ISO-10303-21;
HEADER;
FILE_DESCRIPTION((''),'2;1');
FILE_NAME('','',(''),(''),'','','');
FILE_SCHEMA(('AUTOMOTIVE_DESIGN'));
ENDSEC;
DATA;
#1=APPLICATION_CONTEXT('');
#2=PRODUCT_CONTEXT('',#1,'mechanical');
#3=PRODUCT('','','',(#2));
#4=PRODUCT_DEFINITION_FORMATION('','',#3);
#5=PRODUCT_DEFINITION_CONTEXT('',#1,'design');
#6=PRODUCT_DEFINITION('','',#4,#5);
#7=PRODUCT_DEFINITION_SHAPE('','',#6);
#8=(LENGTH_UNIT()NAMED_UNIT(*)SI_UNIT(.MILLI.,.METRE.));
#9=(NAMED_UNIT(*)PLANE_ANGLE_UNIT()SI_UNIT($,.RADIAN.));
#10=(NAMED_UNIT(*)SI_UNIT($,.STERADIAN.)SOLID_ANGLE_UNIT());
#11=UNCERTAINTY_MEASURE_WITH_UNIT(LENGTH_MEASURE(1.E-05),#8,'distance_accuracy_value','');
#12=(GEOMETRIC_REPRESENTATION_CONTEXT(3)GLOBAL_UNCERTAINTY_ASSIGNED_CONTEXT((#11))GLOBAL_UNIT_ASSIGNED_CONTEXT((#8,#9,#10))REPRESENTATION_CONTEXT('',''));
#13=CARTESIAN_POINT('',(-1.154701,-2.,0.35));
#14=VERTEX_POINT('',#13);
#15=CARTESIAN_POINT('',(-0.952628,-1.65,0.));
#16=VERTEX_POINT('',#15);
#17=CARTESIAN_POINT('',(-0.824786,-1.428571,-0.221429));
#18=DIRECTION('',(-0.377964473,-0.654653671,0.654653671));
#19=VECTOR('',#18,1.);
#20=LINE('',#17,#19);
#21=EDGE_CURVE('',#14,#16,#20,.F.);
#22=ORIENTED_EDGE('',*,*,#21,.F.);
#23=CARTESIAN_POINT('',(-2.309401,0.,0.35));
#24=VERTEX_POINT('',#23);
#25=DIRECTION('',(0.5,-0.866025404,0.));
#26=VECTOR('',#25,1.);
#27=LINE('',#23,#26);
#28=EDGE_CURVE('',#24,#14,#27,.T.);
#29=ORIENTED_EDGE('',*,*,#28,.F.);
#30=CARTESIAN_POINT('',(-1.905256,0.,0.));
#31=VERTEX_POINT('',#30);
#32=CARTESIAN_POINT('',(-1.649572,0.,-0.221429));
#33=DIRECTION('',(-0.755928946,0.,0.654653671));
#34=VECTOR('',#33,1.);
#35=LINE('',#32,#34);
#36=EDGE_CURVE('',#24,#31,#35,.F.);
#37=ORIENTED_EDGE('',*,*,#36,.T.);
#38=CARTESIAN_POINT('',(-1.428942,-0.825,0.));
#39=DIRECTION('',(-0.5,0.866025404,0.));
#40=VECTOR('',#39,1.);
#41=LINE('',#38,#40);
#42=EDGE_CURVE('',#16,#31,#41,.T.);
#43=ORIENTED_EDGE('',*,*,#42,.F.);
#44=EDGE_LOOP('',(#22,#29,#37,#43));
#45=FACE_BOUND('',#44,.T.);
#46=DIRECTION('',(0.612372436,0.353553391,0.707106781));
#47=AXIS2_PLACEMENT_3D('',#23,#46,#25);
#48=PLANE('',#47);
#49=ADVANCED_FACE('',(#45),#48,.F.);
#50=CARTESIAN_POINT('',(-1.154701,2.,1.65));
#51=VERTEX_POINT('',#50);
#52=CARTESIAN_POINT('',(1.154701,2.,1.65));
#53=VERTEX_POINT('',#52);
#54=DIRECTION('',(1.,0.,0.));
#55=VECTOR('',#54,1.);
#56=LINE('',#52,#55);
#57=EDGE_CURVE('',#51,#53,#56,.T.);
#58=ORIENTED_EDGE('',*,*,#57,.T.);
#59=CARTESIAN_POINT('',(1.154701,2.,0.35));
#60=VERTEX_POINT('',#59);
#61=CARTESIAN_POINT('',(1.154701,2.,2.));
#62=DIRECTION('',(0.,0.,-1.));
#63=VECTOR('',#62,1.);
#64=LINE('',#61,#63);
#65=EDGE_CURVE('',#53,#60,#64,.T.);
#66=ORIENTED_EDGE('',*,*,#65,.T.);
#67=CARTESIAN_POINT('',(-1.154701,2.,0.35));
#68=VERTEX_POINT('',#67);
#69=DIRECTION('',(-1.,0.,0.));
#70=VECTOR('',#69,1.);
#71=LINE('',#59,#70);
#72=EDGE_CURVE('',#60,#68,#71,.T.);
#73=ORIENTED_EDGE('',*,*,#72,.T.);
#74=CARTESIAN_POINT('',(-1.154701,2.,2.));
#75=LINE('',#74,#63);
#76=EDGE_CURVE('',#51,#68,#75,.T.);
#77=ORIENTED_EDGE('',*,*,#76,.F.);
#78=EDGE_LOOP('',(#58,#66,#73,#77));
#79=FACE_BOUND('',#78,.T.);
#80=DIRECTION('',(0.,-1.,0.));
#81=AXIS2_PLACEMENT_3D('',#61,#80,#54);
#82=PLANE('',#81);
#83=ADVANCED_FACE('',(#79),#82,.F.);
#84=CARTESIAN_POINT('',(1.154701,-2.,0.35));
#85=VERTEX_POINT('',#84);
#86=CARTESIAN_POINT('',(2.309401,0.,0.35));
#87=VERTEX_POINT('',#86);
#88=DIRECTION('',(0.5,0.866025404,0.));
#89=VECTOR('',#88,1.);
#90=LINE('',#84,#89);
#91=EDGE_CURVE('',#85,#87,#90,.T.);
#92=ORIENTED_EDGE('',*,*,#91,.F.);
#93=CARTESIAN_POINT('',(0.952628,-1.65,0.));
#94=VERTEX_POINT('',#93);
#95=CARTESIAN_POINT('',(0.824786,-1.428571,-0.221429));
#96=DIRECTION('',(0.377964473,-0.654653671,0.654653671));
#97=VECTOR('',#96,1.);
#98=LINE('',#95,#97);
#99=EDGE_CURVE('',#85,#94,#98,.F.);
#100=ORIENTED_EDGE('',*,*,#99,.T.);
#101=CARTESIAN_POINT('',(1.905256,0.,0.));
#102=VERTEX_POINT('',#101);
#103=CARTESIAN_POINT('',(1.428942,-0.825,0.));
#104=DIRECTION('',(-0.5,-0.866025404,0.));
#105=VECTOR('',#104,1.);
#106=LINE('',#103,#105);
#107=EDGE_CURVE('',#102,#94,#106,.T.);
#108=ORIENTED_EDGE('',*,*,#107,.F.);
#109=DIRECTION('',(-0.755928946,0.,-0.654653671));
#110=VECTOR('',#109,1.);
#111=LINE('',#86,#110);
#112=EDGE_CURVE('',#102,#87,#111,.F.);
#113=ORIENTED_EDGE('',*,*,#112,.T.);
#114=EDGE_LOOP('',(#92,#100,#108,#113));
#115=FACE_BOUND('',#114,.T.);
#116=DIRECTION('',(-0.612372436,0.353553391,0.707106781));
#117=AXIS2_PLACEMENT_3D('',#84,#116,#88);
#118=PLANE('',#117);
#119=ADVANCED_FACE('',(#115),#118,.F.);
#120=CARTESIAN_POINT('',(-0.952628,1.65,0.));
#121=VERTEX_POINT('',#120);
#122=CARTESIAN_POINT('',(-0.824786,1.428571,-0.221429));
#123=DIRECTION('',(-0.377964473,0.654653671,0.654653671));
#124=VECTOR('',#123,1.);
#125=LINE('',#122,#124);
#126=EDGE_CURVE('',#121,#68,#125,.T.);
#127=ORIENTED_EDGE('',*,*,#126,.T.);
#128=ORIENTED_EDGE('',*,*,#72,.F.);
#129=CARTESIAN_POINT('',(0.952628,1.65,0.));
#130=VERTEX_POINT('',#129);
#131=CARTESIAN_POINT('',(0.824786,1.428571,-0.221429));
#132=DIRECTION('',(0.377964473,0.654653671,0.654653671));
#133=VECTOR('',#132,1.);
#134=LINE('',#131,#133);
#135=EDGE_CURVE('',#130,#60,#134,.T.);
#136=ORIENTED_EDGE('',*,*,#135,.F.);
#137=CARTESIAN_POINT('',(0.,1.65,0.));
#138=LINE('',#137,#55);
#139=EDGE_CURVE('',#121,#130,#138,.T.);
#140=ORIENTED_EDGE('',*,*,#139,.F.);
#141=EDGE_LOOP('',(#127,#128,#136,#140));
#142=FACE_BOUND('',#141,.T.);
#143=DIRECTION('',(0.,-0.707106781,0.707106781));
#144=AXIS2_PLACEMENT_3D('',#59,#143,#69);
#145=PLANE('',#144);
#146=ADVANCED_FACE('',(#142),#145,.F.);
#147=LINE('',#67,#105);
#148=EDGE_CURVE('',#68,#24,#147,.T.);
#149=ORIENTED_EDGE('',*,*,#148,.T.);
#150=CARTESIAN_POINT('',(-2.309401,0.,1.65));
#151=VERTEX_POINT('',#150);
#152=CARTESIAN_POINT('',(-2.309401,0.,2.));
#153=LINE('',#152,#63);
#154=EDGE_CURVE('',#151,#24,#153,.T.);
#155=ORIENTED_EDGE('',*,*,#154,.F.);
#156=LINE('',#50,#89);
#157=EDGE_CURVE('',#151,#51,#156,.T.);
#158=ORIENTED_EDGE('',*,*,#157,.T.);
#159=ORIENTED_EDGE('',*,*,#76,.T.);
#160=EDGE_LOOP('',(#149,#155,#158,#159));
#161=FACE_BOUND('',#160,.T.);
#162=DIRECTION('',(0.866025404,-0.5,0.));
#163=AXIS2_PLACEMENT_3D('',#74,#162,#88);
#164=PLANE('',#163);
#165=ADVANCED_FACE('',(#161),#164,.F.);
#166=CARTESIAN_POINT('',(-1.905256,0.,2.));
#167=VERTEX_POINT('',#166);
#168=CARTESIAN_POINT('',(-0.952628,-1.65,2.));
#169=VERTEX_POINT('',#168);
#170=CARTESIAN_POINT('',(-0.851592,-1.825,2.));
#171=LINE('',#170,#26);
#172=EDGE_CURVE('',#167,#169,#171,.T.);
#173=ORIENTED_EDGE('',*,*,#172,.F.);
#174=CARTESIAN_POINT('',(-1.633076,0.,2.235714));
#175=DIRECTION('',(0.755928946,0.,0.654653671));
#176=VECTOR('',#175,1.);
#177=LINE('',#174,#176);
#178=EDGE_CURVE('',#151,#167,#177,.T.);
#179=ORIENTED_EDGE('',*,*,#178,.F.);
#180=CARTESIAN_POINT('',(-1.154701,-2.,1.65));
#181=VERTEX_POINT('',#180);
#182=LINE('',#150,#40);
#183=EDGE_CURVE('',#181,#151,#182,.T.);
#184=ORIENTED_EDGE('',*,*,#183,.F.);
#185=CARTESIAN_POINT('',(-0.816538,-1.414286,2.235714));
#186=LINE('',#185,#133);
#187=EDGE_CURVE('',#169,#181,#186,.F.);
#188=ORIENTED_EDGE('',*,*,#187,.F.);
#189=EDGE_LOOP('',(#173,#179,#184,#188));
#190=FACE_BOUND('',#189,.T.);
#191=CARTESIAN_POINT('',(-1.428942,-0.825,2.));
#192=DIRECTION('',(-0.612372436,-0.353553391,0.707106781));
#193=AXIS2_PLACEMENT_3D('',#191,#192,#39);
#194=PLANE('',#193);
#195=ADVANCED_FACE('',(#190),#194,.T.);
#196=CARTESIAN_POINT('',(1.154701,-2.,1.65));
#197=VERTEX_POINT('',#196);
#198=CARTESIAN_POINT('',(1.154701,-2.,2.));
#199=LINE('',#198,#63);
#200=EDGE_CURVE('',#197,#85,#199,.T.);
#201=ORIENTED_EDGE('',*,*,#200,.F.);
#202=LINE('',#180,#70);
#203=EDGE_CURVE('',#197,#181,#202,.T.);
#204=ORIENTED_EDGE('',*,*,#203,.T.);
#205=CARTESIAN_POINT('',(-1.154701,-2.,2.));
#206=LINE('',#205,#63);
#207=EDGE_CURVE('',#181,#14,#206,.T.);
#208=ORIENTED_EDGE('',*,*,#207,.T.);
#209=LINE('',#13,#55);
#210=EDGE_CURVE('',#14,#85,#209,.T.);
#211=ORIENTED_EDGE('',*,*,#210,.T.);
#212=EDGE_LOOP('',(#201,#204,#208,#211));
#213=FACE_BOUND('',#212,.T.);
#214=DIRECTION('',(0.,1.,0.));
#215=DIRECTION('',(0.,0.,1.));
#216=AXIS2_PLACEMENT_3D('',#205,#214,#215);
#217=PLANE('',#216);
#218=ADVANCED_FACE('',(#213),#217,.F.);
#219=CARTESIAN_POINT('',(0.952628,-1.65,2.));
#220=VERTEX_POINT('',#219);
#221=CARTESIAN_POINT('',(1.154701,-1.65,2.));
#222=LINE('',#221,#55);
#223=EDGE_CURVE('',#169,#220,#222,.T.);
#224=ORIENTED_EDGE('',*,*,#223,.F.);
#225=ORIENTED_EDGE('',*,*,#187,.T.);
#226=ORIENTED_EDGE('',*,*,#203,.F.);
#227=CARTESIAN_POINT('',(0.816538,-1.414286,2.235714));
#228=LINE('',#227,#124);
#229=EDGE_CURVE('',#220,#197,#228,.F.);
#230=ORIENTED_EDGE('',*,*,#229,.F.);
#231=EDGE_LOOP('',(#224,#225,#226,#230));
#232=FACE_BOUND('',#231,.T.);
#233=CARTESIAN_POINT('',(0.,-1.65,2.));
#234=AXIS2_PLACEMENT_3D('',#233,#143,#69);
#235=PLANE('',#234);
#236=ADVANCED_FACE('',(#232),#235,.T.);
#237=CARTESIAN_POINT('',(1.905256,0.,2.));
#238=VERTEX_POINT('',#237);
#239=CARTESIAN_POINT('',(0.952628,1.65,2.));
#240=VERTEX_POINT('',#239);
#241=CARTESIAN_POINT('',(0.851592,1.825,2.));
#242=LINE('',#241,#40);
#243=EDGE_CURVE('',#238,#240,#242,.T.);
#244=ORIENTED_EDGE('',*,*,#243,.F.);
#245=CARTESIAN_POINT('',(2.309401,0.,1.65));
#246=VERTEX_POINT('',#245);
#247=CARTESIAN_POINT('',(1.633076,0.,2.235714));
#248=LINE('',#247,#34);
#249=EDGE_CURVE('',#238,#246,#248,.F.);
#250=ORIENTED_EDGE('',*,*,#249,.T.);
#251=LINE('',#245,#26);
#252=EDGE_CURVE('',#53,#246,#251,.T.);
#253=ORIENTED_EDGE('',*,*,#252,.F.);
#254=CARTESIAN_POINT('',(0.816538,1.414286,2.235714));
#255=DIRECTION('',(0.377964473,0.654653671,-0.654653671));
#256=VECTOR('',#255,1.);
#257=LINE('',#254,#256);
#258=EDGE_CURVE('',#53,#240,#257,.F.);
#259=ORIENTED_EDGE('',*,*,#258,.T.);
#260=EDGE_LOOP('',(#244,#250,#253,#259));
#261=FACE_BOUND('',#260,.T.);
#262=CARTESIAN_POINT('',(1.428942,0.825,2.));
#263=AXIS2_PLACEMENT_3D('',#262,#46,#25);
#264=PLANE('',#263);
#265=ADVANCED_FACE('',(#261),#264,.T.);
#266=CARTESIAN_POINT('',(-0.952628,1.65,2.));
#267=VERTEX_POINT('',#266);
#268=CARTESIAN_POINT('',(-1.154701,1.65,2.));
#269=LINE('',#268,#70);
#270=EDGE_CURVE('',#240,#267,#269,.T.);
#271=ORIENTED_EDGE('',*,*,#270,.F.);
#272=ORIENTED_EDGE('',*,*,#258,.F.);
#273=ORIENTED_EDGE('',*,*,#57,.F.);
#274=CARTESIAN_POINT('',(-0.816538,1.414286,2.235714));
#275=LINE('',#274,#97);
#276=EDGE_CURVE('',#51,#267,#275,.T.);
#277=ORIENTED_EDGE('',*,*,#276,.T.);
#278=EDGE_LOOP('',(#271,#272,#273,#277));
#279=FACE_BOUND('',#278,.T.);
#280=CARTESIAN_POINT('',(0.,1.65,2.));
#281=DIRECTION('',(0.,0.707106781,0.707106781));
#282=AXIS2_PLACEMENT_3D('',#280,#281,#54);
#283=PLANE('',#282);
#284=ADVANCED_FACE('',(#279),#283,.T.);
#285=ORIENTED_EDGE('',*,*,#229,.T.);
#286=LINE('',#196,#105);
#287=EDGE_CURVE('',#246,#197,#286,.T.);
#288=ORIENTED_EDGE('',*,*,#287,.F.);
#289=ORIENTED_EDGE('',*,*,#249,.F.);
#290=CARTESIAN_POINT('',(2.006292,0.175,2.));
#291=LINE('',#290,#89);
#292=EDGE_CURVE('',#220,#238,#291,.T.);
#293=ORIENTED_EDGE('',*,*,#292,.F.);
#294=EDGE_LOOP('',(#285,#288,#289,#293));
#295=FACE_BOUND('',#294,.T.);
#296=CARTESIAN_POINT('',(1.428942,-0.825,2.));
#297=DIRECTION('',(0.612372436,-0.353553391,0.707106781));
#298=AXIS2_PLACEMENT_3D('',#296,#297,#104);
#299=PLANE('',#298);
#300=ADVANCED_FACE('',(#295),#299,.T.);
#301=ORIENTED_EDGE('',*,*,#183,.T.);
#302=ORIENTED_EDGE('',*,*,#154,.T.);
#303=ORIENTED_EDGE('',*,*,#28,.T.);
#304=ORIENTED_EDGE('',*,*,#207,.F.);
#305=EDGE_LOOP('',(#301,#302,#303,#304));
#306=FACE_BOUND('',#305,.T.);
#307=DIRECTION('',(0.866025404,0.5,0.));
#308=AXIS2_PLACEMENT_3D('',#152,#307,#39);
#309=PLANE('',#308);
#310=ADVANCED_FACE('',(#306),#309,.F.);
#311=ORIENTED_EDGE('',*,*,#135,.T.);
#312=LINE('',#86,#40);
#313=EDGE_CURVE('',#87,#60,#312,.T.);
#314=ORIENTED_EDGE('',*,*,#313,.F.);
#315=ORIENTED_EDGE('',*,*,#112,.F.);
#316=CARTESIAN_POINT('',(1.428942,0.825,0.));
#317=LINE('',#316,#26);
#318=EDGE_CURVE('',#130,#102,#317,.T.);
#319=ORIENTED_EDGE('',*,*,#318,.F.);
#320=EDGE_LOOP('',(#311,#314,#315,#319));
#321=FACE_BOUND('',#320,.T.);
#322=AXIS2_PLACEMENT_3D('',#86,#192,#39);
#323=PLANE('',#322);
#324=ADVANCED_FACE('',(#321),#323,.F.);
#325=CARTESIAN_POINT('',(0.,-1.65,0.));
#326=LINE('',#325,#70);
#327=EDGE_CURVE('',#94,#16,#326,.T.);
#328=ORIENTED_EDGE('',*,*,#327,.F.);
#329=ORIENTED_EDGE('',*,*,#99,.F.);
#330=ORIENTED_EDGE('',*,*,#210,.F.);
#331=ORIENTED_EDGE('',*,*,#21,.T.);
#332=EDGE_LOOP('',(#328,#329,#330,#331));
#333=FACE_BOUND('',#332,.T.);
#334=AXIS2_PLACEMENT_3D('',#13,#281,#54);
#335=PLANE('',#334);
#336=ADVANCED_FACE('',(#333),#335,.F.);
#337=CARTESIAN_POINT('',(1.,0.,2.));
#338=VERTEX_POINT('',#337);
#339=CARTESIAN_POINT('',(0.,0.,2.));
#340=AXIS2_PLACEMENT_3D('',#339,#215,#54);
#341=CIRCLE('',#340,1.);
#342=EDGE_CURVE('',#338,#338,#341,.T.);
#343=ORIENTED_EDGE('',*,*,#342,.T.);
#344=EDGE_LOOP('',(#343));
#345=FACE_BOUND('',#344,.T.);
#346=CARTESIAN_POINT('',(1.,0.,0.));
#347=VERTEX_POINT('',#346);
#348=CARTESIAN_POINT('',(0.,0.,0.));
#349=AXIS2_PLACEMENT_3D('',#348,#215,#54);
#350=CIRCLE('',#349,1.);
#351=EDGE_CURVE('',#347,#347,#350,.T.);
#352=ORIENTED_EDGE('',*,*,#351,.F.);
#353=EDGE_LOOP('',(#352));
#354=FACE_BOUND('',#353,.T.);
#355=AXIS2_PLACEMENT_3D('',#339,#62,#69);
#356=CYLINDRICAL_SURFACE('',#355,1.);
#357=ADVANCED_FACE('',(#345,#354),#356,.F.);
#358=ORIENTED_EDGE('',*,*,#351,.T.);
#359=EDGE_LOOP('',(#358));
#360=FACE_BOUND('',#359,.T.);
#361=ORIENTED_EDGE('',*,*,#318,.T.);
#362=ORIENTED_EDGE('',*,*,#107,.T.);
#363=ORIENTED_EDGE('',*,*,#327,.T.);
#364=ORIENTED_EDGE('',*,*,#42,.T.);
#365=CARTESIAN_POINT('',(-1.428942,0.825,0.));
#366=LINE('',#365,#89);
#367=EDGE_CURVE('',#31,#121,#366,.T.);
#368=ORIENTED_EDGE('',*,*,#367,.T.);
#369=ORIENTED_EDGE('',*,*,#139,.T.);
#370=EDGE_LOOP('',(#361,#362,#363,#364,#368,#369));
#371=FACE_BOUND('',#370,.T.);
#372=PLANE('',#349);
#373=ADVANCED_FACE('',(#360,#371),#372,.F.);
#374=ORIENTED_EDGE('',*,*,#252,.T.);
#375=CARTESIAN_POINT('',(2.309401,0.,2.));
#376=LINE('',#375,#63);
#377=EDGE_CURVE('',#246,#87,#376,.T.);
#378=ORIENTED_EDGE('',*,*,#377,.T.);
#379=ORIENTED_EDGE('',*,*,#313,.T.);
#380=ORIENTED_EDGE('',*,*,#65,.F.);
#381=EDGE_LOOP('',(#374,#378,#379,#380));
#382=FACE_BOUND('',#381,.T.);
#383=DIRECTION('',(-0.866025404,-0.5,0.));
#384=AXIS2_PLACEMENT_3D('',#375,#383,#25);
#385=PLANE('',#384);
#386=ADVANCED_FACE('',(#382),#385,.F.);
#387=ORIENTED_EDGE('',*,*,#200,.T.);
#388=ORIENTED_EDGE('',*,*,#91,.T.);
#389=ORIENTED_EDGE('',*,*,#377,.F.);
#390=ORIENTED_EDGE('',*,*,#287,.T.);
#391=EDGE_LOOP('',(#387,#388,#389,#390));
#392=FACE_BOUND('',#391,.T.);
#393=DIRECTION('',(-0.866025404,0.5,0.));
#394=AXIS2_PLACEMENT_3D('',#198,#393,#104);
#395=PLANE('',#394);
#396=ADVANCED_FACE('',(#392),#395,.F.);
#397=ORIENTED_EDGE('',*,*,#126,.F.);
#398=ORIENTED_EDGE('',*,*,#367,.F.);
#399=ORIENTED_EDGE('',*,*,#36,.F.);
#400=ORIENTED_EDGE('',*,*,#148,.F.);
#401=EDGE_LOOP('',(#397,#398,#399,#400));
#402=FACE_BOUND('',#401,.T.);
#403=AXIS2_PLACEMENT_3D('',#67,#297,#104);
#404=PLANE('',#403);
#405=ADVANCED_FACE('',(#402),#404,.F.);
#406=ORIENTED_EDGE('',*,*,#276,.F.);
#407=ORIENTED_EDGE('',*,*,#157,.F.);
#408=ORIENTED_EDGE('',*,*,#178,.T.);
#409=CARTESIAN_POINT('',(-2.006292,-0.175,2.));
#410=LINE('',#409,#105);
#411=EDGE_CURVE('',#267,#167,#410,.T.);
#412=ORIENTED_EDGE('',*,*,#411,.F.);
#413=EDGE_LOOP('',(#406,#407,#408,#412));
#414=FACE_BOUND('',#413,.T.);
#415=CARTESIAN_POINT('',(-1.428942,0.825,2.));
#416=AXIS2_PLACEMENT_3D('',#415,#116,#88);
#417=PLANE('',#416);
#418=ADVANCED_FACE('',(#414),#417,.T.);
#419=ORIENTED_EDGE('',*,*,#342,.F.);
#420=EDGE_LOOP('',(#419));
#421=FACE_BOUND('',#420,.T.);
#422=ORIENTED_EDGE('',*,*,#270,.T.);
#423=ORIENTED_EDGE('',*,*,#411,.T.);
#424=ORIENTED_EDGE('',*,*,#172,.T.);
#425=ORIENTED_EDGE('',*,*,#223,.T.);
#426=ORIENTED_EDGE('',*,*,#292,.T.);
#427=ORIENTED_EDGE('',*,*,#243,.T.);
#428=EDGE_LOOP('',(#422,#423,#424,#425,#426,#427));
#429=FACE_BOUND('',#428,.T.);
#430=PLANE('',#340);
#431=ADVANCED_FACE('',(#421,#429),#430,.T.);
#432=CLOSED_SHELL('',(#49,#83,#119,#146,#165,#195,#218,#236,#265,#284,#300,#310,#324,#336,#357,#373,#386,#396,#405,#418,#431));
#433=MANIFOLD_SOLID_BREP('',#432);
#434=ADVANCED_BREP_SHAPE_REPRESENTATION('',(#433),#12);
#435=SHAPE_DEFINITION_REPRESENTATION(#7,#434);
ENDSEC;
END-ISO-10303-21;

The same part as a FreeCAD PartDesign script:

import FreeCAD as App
import Part
import Sketcher
Q = App.Units.Quantity


def edges_at(feature, points):
    """Names of the edges that pass closest to the given points."""
    edges = feature.Shape.Edges
    near = lambda p: min(range(len(edges)), key=lambda i: edges[i].distToShape(Part.Vertex(*p))[0])
    return sorted({f"Edge{near(p) + 1}" for p in points})


def add_polygon(sketch, points):
    """Adds a closed chain of lines whose ends are joined by coincident constraints."""
    first, n = sketch.GeometryCount, len(points)
    for a, b in zip(points, points[1:] + points[:1]):
        sketch.addGeometry(Part.LineSegment(App.Vector(*a, 0), App.Vector(*b, 0)), False)
    for i in range(n):
        sketch.addConstraint(Sketcher.Constraint("Coincident", first + i, 2, first + (i + 1) % n, 1))

doc = App.newDocument("Part")
body = doc.addObject("PartDesign::Body", "Body")

sketch1 = body.newObject("Sketcher::SketchObject", "Sketch")
sketch1.AttachmentSupport = (doc.getObject("XY_Plane"), [""])
sketch1.MapMode = "FlatFace"
add_polygon(sketch1, [(-1.2, -2), (1.2, -2), (2.3, 0), (1.2, 2), (-1.2, 2), (-2.3, 0)])
sketch1.addGeometry(Part.Circle(App.Vector(0, 0, 0), App.Vector(0, 0, 1), 1), False)
sketch1.addConstraint(Sketcher.Constraint("Horizontal", 0))
sketch1.addConstraint(Sketcher.Constraint("Horizontal", 3))
sketch1.addConstraint(Sketcher.Constraint("Coincident", 6, 3, -1, 1))
sketch1.addConstraint(Sketcher.Constraint("Symmetric", 0, 2, 3, 2, -1, 1))
sketch1.addConstraint(Sketcher.Constraint("Symmetric", 1, 2, 4, 2, -1, 1))
sketch1.addConstraint(Sketcher.Constraint("PointOnObject", 1, 2, -1))
sketch1.addConstraint(Sketcher.Constraint("Parallel", 2, 5))
sketch1.addConstraint(Sketcher.Constraint("Vertical", 0, 2, 2, 2))
sketch1.addConstraint(Sketcher.Constraint("Diameter", 6, 2.0))
sketch1.addConstraint(Sketcher.Constraint("Angle", 1, Q("60 deg")))
sketch1.addConstraint(Sketcher.Constraint("DistanceY", 0, 2, -1, 1, 2.0))
sketch1.addConstraint(Sketcher.Constraint("DistanceX", 0, 1, 0, 2, 2.309401))
pad1 = body.newObject("PartDesign::Pad", "Pad")
pad1.Profile = sketch1
pad1.Length = 2
doc.recompute()

chamfer = body.newObject("PartDesign::Chamfer", "Chamfer")
chamfer.Base = (pad1, edges_at(pad1, [
    (1.732, -1, 2),
    (1.732, 1, 2),
    (0, 2, 2),
    (-1.732, 1, 2),
    (-1.732, -1, 2),
    (-1.732, 1, 0),
    (0, 2, 0),
    (1.732, 1, 0),
    (0, -2, 2),
    (1.732, -1, 0),
    (0, -2, 0),
    (-1.732, -1, 0),
]))
chamfer.Size = 0.35

doc.recompute()
